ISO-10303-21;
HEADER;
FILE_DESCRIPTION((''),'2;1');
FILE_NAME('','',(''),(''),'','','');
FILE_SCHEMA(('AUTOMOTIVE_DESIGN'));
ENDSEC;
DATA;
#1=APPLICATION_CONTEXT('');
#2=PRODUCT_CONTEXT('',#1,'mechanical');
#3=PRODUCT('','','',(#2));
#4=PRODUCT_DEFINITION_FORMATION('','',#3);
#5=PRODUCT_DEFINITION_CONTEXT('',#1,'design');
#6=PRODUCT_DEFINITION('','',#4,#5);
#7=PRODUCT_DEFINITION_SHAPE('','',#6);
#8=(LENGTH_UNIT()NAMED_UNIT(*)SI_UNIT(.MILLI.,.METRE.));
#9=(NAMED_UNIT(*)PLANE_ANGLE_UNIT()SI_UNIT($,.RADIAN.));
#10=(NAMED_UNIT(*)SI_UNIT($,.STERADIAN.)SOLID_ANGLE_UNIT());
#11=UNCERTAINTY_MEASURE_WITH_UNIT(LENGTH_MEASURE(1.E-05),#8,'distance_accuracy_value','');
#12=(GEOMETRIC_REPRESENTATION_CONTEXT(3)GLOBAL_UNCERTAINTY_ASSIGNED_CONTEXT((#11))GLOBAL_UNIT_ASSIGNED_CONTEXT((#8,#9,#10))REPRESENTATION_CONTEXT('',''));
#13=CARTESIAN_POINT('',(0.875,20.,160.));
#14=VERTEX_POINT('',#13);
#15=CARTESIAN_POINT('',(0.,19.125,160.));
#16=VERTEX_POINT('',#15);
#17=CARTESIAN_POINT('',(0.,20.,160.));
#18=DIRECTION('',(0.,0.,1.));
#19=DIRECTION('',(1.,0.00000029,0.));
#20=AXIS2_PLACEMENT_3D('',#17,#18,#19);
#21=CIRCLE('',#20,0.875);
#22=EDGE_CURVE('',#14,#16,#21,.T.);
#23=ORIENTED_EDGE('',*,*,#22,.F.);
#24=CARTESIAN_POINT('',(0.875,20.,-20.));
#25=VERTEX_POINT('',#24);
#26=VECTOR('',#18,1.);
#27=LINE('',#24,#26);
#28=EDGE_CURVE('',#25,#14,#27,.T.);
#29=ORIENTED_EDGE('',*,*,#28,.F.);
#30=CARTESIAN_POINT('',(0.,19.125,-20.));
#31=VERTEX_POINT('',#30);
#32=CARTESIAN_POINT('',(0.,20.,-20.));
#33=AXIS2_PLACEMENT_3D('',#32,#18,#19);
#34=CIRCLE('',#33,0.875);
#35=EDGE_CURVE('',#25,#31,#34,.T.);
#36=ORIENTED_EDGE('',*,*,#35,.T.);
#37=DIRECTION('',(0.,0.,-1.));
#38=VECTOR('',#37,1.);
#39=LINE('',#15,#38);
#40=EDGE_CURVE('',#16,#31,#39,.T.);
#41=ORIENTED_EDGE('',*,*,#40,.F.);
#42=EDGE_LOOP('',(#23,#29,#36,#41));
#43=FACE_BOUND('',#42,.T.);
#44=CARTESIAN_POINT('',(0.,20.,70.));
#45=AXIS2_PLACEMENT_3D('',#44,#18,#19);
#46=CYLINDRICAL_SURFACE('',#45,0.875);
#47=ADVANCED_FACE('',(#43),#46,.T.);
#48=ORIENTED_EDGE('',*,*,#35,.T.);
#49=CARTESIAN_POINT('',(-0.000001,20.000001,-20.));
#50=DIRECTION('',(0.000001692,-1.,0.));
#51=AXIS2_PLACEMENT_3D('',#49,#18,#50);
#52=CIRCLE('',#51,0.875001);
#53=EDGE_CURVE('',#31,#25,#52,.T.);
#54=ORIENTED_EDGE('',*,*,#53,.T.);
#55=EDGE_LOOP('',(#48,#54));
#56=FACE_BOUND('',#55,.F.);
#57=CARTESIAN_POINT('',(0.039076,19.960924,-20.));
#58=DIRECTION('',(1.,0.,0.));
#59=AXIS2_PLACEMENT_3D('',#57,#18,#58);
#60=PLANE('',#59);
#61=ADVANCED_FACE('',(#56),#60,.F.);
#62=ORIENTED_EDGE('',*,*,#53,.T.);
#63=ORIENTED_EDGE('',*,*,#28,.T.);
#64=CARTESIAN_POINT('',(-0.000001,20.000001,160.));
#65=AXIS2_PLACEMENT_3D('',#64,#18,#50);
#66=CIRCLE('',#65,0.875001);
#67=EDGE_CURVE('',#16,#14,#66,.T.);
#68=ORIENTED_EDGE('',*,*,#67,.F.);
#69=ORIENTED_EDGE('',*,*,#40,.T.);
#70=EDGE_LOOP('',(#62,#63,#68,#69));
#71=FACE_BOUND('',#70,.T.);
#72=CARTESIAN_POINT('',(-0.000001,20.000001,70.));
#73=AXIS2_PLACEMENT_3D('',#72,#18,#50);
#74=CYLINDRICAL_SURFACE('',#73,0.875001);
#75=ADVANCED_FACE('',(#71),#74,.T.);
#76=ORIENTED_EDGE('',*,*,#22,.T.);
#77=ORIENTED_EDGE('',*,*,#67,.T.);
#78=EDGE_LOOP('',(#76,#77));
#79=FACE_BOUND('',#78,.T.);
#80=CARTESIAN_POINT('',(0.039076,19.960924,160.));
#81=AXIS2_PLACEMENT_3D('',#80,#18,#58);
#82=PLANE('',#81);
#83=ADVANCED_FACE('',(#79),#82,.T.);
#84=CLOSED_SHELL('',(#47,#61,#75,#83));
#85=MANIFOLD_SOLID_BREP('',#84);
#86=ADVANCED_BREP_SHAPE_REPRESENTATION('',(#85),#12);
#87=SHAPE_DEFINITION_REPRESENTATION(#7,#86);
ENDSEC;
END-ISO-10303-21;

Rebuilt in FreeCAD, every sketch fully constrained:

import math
import FreeCAD as App
import Part
import Sketcher

V = App.Vector

doc = App.newDocument("Part")
params = doc.addObject("Spreadsheet::Sheet", "Params")
for row, (alias, value) in enumerate([
    ("pad1_length", "180 mm"),
], start=1):
    params.set(f"A{row}", alias)
    params.set(f"B{row}", "=" + value)
    params.setAlias(f"B{row}", alias)

body = doc.addObject("PartDesign::Body", "Body")

sketch1 = body.newObject("Sketcher::SketchObject", "Sketch")
sketch1.AttachmentSupport = (doc.getObject("XY_Plane"), [""])
sketch1.MapMode = "FlatFace"
sketch1.AttachmentOffset = App.Placement(V(0, 0, 70), App.Rotation())
sketch1.addGeometry([
    Part.ArcOfCircle(Part.Circle(V(0, 20, 0), V(0, 0, 1), 0.9), math.radians(-90), math.radians(0)),
    Part.ArcOfCircle(Part.Circle(V(0, 20, 0), V(0, 0, 1), 0.9), math.radians(0), math.radians(270)),
], False)
sketch1.addConstraint([
    Sketcher.Constraint("Tangent", 0, 1, 1, 2),
    Sketcher.Constraint("Coincident", 1, 1, 0, 2),
    Sketcher.Constraint("PointOnObject", 0, 3, -2),
    Sketcher.Constraint("PointOnObject", 0, 1, -2),
    Sketcher.Constraint("Horizontal", 0, 3, 1, 1),
    Sketcher.Constraint("DistanceY", -1, 1, 0, 3, 20.000001),
    Sketcher.Constraint("Radius", 0, 0.875001),
])
pad1 = body.newObject("PartDesign::Pad", "Pad")
pad1.Profile = sketch1
pad1.setExpression("Length", "Params.pad1_length")
pad1.Midplane = True

doc.recompute()
